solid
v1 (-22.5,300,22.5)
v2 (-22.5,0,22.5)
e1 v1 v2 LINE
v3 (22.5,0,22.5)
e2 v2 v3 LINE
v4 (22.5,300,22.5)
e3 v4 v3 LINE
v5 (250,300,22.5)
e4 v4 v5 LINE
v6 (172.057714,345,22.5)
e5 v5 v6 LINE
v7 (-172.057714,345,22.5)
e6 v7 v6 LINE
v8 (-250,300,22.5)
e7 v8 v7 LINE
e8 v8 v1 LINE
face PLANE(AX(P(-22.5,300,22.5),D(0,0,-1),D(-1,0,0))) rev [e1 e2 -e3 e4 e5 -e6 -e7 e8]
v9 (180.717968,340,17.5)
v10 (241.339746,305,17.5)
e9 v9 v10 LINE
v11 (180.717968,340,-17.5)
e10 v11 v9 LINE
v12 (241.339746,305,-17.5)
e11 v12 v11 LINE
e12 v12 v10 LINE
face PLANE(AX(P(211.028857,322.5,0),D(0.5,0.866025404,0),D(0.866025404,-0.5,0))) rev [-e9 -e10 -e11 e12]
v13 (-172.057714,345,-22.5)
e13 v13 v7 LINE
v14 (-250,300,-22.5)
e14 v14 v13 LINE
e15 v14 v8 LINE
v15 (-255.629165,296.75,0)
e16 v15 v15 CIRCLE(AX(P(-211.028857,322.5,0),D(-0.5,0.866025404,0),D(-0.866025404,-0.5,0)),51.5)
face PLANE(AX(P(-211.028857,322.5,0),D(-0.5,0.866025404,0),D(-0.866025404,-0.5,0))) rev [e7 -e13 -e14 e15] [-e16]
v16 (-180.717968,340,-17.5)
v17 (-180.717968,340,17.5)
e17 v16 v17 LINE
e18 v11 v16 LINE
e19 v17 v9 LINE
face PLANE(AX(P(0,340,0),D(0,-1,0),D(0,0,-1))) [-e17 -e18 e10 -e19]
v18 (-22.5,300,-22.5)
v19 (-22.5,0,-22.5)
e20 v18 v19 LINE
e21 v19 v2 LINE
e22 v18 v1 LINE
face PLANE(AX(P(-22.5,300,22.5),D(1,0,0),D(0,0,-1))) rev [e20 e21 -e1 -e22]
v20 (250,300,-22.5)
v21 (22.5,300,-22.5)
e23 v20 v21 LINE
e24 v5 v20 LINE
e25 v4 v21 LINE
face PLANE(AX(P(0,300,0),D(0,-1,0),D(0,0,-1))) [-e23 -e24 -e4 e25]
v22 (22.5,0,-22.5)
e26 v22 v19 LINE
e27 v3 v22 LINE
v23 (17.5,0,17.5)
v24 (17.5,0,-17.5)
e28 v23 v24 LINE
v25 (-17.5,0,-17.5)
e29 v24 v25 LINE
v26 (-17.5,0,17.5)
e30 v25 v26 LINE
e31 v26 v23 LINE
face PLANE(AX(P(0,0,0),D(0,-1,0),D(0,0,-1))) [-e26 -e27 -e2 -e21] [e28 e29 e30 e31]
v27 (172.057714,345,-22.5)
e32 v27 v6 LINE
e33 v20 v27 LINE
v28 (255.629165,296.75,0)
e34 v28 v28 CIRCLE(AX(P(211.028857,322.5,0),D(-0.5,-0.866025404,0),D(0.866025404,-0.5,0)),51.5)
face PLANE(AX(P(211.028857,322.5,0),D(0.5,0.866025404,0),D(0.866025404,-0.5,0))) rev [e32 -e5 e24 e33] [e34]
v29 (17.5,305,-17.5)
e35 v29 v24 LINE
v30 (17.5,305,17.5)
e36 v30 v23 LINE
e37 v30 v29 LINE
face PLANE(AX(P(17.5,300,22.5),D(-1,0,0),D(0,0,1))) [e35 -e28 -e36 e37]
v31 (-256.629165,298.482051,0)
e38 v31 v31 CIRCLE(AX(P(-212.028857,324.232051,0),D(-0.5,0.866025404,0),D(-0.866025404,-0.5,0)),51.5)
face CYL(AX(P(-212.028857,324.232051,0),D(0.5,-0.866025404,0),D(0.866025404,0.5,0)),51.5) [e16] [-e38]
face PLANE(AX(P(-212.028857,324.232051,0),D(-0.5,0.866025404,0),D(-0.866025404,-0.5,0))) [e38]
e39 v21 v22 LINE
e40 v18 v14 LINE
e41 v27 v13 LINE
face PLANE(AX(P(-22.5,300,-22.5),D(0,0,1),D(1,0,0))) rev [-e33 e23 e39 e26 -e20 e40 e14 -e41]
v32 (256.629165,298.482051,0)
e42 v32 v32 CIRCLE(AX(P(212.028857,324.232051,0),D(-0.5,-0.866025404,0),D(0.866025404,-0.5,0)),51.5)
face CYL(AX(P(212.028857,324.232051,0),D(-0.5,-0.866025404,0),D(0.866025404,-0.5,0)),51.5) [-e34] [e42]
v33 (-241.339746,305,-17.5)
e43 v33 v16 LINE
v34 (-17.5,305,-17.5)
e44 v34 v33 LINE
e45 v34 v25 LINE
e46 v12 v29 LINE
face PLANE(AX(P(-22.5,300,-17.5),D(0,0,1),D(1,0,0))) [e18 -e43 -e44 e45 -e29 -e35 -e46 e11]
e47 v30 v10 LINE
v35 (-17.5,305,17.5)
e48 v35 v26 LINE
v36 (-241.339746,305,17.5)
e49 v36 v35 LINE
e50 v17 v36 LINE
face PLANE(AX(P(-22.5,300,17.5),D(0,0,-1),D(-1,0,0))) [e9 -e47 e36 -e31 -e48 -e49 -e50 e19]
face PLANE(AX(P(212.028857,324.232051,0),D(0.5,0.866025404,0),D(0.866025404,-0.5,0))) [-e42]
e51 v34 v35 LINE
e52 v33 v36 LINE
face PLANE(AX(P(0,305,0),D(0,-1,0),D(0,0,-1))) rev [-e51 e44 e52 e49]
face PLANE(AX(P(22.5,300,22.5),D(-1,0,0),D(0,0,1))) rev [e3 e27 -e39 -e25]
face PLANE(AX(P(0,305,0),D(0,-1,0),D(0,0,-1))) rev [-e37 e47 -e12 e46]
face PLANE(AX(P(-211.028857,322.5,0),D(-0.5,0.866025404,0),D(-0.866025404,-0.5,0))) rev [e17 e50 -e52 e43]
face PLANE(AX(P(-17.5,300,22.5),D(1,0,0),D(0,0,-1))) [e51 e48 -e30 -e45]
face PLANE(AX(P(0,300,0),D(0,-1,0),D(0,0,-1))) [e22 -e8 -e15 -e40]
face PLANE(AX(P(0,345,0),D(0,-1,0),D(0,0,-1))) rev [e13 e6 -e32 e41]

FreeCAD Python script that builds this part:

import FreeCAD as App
import Part
import Sketcher

V = App.Vector
Q = App.Units.Quantity


def faces_at(feature, points):
    """Names of the faces that lie closest to the given points."""
    faces = feature.Shape.Faces
    near = lambda p: min(range(len(faces)), key=lambda i: faces[i].distToShape(Part.Vertex(*p))[0])
    return sorted({f"Face{near(p) + 1}" for p in points})

doc = App.newDocument("Part")
body = doc.addObject("PartDesign::Body", "Body")

# Sketch on XZ plane
sketch1 = body.newObject("Sketcher::SketchObject", "Sketch")
sketch1.AttachmentSupport = (doc.getObject("XZ_Plane"), [""])
sketch1.MapMode = "FlatFace"
sketch1.addGeometry(Part.LineSegment(V(-22, -22, 0), V(-22, 22, 0)), False)
sketch1.addGeometry(Part.LineSegment(V(-22, 22, 0), V(22, 22, 0)), False)
sketch1.addGeometry(Part.LineSegment(V(22, 22, 0), V(22, -22, 0)), False)
sketch1.addGeometry(Part.LineSegment(V(22, -22, 0), V(-22, -22, 0)), False)
sketch1.addConstraint(Sketcher.Constraint("Coincident", 0, 2, 1, 1))
sketch1.addConstraint(Sketcher.Constraint("Coincident", 1, 2, 2, 1))
sketch1.addConstraint(Sketcher.Constraint("Coincident", 2, 2, 3, 1))
sketch1.addConstraint(Sketcher.Constraint("Coincident", 3, 2, 0, 1))
sketch1.addConstraint(Sketcher.Constraint("Vertical", 0))
sketch1.addConstraint(Sketcher.Constraint("Horizontal", 1))
sketch1.addConstraint(Sketcher.Constraint("Vertical", 2))
sketch1.addConstraint(Sketcher.Constraint("Horizontal", 3))
sketch1.addConstraint(Sketcher.Constraint("Symmetric", 0, 2, 2, 2, -1, 1))
sketch1.addConstraint(Sketcher.Constraint("Equal", 3, 0))
sketch1.addConstraint(Sketcher.Constraint("DistanceX", 1, 1, 1, 2, 45.0))
pad1 = body.newObject("PartDesign::Pad", "Pad")
pad1.Profile = sketch1
pad1.Length = 300
pad1.Reversed = True

# Sketch on XZ plane
sketch2 = body.newObject("Sketcher::SketchObject", "Sketch001")
sketch2.AttachmentSupport = (doc.getObject("XZ_Plane"), [""])
sketch2.MapMode = "FlatFace"
sketch2.AttachmentOffset = App.Placement(V(0, 0, -300), App.Rotation())
sketch2.addGeometry(Part.LineSegment(V(-250, -22, 0), V(-250, 22, 0)), False)
sketch2.addGeometry(Part.LineSegment(V(-250, 22, 0), V(250, 22, 0)), False)
sketch2.addGeometry(Part.LineSegment(V(250, 22, 0), V(250, -22, 0)), False)
sketch2.addGeometry(Part.LineSegment(V(250, -22, 0), V(-250, -22, 0)), False)
sketch2.addConstraint(Sketcher.Constraint("Coincident", 0, 2, 1, 1))
sketch2.addConstraint(Sketcher.Constraint("Coincident", 1, 2, 2, 1))
sketch2.addConstraint(Sketcher.Constraint("Coincident", 2, 2, 3, 1))
sketch2.addConstraint(Sketcher.Constraint("Coincident", 3, 2, 0, 1))
sketch2.addConstraint(Sketcher.Constraint("Vertical", 0))
sketch2.addConstraint(Sketcher.Constraint("Horizontal", 1))
sketch2.addConstraint(Sketcher.Constraint("Vertical", 2))
sketch2.addConstraint(Sketcher.Constraint("Horizontal", 3))
sketch2.addConstraint(Sketcher.Constraint("Symmetric", 0, 2, 2, 2, -1, 1))
sketch2.addConstraint(Sketcher.Constraint("DistanceX", 1, 1, 1, 2, 500.0))
sketch2.addConstraint(Sketcher.Constraint("DistanceY", 0, 1, 0, 2, 45.0))
pad2 = body.newObject("PartDesign::Pad", "Pad001")
pad2.Profile = sketch2
pad2.Length = 45
pad2.Reversed = True
doc.recompute()

thickness = body.newObject("PartDesign::Thickness", "Thickness")
thickness.Base = (pad2, faces_at(pad2, [(250, 322.5, 0), (-250, 322.5, 0), (0, 0, 0)]))
thickness.Value = 5
thickness.Reversed = True
thickness.Join = "Intersection"

# Sketch on XY plane
sketch3 = body.newObject("Sketcher::SketchObject", "Sketch002")
sketch3.AttachmentSupport = (doc.getObject("XY_Plane"), [""])
sketch3.MapMode = "FlatFace"
sketch3.AttachmentOffset = App.Placement(V(0, 0, 22.5), App.Rotation())
sketch3.addGeometry(Part.LineSegment(V(-250, 300, 0), V(-172, 345, 0)), False)
sketch3.addGeometry(Part.LineSegment(V(-172, 345, 0), V(-187, 592, 0)), False)
sketch3.addGeometry(Part.LineSegment(V(-187, 592, 0), V(-292, 585, 0)), False)
sketch3.addGeometry(Part.LineSegment(V(-292, 585, 0), V(-266, 495, 0)), False)
sketch3.addGeometry(Part.LineSegment(V(-266, 495, 0), V(-250, 300, 0)), False)
sketch3.addConstraint(Sketcher.Constraint("Coincident", 0, 2, 1, 1))
sketch3.addConstraint(Sketcher.Constraint("Coincident", 1, 2, 2, 1))
sketch3.addConstraint(Sketcher.Constraint("Coincident", 2, 2, 3, 1))
sketch3.addConstraint(Sketcher.Constraint("Coincident", 3, 2, 4, 1))
sketch3.addConstraint(Sketcher.Constraint("Coincident", 4, 2, 0, 1))
sketch3.addConstraint(Sketcher.Constraint("Perpendicular", 1, 2))
sketch3.addConstraint(Sketcher.Constraint("Angle", 0, Q("30 deg")))
sketch3.addConstraint(Sketcher.Constraint("Distance", 0, 90.0))
sketch3.addConstraint(Sketcher.Constraint("DistanceY", -1, 1, 0, 2, 345.0))
sketch3.addConstraint(Sketcher.Constraint("DistanceX", 4, 2, -1, 1, 250.0))
sketch3.addConstraint(Sketcher.Constraint("Distance", 3, 93.9006))
sketch3.addConstraint(Sketcher.Constraint("DistanceY", -1, 1, 2, 2, 585.340379))
sketch3.addConstraint(Sketcher.Constraint("DistanceX", 3, 2, -1, 1, 265.544239))
sketch3.addConstraint(Sketcher.Constraint("DistanceX", 2, 2, 1, 2, 105.13839))
sketch3.addConstraint(Sketcher.Constraint("DistanceX", 2, 2, 3, 2, 26.857959))
pocket1 = body.newObject("PartDesign::Pocket", "Pocket")
pocket1.Profile = sketch3
pocket1.Length = 45

# Sketch on an angled plane
sketch4 = body.newObject("Sketcher::SketchObject", "Sketch003")
sketch4.Placement = App.Placement(V(-192.403811, 333.253175, 0), App.Rotation(V(0.866025404, 0.5, 0), V(0, 0, -1), V(-0.5, 0.866025404, 0), "ZXY"))
sketch4.addGeometry(Part.Circle(V(-22, 0, 0), V(0, 0, 1), 52), False)
sketch4.addConstraint(Sketcher.Constraint("PointOnObject", 0, 3, -1))
sketch4.addConstraint(Sketcher.Constraint("Diameter", 0, 103.0))
sketch4.addConstraint(Sketcher.Constraint("DistanceX", 0, 3, -1, 1, 21.506351))
pad3 = body.newObject("PartDesign::Pad", "Pad002")
pad3.Profile = sketch4
pad3.Length = 2
doc.recompute()

mirrored = body.newObject("PartDesign::Mirrored", "Mirrored")
mirrored.Originals = [pocket1, pad3]
mirrored.MirrorPlane = (doc.getObject("YZ_Plane"), [""])
body.Tip = mirrored

doc.recompute()
